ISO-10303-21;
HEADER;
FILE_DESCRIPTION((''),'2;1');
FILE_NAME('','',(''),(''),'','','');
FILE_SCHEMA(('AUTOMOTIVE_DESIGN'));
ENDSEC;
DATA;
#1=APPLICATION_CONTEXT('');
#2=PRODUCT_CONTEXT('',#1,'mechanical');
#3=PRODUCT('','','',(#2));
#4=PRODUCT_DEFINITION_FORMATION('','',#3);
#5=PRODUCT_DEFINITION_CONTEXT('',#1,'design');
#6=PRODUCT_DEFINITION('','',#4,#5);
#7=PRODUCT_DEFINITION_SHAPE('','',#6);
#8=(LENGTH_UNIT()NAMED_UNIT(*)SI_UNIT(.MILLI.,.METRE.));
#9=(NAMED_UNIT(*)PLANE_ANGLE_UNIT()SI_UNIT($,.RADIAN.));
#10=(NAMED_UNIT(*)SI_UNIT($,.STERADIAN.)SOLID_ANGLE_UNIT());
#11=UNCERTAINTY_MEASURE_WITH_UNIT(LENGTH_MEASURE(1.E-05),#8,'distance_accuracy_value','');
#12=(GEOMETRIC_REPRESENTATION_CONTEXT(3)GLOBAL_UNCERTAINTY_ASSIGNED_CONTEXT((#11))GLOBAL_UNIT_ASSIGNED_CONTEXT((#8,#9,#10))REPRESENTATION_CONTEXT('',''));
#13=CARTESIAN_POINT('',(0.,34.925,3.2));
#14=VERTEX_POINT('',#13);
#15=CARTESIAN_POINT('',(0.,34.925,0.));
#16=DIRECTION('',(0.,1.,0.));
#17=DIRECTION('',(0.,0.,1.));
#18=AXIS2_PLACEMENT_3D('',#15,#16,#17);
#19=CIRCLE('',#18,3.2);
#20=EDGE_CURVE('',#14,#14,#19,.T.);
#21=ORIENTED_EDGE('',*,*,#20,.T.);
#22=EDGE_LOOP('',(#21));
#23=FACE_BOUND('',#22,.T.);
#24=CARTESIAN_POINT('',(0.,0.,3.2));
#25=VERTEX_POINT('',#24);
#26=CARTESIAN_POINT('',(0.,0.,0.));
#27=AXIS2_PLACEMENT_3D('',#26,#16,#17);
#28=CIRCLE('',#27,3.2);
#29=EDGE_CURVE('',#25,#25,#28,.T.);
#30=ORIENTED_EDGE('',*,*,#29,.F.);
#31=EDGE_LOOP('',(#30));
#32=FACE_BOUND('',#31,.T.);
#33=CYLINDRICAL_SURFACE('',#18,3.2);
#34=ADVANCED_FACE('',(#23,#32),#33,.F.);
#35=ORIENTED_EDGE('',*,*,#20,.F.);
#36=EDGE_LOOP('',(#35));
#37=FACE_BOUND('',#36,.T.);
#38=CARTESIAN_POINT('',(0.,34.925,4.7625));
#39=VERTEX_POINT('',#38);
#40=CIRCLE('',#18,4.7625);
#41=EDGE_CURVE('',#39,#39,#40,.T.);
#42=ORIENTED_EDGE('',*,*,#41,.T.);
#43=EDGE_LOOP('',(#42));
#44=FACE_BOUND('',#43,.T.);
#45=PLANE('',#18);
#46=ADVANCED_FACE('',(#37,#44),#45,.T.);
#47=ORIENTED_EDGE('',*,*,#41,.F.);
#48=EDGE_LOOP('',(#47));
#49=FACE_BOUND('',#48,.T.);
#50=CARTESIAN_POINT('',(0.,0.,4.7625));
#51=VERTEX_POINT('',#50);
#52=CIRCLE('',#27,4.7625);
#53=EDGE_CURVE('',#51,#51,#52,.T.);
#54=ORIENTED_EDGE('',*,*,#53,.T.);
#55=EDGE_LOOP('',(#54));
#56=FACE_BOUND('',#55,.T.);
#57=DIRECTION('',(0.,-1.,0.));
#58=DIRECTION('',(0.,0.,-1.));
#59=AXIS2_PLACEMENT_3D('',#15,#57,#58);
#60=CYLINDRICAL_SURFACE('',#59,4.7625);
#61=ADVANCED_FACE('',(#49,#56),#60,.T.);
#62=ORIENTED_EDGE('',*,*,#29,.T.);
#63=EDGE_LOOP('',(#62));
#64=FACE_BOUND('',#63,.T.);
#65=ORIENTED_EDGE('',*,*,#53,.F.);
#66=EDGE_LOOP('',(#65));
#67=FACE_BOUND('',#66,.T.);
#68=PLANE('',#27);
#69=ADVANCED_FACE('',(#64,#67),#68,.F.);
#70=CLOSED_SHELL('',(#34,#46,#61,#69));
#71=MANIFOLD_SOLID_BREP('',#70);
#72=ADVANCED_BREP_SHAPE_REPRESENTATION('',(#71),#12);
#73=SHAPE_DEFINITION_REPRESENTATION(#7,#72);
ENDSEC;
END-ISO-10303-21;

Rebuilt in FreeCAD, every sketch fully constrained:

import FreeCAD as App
import Part
import Sketcher

V = App.Vector
Q = App.Units.Quantity

doc = App.newDocument("Part")
body = doc.addObject("PartDesign::Body", "Body")

# Sketch on XZ plane
sketch1 = body.newObject("Sketcher::SketchObject", "Sketch")
sketch1.AttachmentSupport = (doc.getObject("XZ_Plane"), [""])
sketch1.MapMode = "FlatFace"
sketch1.addGeometry(Part.Circle(V(0, 0, 0), V(0, 0, 1), 4.8), False)
sketch1.addConstraint(Sketcher.Constraint("Coincident", 0, 3, -1, 1))
sketch1.addConstraint(Sketcher.Constraint("Diameter", 0, Q("0.375 in")))
pad1 = body.newObject("PartDesign::Pad", "Pad")
pad1.Profile = sketch1
pad1.Length = Q("1.375 in")
pad1.Reversed = True

# Sketch on XZ plane
sketch2 = body.newObject("Sketcher::SketchObject", "Sketch001")
sketch2.AttachmentSupport = (doc.getObject("XZ_Plane"), [""])
sketch2.MapMode = "FlatFace"
sketch2.AttachmentOffset = App.Placement(V(0, 0, -1.375 * 25.4), App.Rotation())
sketch2.addGeometry(Part.Circle(V(0, 0, 0), V(0, 0, 1), 3.2), False)
sketch2.addConstraint(Sketcher.Constraint("Coincident", 0, 3, -1, 1))
sketch2.addConstraint(Sketcher.Constraint("Diameter", 0, Q("6.4 mm")))
doc.recompute()
hole = body.newObject("PartDesign::Hole", "Hole")
hole.Profile = sketch2
hole.ThreadType = "None"
hole.Diameter = 6.4
hole.DepthType = "ThroughAll"
hole.Reversed = True

doc.recompute()
